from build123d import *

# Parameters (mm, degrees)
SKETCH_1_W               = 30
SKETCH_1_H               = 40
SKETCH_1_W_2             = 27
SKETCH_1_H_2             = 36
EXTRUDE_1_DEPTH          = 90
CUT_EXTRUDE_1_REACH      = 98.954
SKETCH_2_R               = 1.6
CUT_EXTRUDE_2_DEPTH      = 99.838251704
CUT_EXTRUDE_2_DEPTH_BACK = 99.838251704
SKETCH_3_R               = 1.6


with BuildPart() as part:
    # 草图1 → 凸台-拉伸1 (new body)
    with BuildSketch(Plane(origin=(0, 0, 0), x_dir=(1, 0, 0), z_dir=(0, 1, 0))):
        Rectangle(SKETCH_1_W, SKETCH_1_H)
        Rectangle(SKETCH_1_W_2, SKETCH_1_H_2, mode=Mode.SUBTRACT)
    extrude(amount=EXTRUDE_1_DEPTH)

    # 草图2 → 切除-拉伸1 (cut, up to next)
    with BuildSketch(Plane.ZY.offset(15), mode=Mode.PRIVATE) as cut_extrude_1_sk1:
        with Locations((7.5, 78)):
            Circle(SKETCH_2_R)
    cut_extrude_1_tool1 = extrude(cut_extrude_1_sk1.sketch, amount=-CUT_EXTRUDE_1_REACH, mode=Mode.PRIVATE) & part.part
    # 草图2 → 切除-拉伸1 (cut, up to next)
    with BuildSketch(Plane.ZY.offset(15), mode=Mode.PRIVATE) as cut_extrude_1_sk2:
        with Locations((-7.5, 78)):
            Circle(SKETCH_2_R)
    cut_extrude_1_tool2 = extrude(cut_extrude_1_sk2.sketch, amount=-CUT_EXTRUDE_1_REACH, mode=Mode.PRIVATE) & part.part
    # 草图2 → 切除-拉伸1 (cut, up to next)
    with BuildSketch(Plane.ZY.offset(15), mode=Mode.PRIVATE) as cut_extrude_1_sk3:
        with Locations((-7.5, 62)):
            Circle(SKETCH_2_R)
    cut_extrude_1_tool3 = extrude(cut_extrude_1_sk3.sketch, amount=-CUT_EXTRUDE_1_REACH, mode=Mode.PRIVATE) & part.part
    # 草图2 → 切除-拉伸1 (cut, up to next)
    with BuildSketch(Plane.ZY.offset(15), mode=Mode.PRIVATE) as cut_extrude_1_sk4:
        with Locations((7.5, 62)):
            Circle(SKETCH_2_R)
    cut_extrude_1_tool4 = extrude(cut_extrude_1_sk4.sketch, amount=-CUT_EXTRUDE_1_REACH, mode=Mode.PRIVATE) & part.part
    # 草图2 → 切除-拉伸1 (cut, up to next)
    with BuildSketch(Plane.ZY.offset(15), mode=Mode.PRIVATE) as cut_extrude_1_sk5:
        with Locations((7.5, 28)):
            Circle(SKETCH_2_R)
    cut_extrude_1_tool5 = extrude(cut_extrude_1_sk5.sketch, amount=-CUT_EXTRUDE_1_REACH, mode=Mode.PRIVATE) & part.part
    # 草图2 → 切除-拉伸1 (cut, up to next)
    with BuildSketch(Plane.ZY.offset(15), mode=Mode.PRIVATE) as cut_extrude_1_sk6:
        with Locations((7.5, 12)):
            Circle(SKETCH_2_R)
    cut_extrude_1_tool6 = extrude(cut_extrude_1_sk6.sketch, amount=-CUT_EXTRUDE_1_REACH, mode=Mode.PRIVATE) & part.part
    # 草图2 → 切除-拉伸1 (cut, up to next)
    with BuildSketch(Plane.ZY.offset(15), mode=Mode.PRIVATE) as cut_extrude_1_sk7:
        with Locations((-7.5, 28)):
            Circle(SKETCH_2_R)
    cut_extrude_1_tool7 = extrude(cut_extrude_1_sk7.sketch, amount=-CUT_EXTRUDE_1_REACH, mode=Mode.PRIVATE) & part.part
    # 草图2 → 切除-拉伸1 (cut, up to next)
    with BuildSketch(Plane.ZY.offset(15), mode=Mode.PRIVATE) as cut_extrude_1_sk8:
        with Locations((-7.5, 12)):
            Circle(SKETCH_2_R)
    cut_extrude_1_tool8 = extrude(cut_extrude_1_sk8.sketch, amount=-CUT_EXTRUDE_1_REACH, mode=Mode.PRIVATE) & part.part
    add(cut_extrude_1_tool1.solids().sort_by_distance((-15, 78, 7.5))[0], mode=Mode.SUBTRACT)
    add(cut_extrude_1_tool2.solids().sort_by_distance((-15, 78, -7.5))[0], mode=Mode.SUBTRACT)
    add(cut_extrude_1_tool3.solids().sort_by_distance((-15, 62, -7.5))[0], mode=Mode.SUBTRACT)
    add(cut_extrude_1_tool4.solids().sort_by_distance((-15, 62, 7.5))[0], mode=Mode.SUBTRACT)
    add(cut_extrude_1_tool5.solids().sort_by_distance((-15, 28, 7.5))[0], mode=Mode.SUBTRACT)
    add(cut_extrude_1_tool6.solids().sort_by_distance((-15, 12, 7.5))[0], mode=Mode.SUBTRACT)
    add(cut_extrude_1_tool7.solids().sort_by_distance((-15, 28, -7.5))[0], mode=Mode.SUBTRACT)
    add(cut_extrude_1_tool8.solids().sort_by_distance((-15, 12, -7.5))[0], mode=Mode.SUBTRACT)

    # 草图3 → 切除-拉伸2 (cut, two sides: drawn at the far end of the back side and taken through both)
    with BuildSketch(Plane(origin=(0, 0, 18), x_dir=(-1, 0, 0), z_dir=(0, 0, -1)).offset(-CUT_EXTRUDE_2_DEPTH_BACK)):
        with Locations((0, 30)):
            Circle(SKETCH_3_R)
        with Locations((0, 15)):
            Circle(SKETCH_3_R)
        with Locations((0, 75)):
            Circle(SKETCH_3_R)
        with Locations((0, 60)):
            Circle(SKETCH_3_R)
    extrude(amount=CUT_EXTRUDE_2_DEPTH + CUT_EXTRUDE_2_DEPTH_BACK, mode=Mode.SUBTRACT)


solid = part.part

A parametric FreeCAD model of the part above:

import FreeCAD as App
import Part
import Sketcher
Q = App.Units.Quantity


def add_polygon(sketch, points):
    """Adds a closed chain of lines whose ends are joined by coincident constraints."""
    first, n = sketch.GeometryCount, len(points)
    for a, b in zip(points, points[1:] + points[:1]):
        sketch.addGeometry(Part.LineSegment(App.Vector(*a, 0), App.Vector(*b, 0)), False)
    for i in range(n):
        sketch.addConstraint(Sketcher.Constraint("Coincident", first + i, 2, first + (i + 1) % n, 1))

doc = App.newDocument("Part")
body = doc.addObject("PartDesign::Body", "Body")

sketch1 = doc.addObject("Sketcher::SketchObject", "Sketch")
body.addObject(sketch1)
sketch1.AttachmentSupport = (doc.XZ_Plane, [""])
sketch1.MapMode = "FlatFace"
add_polygon(sketch1, [(-15, -20), (-15, 20), (15, 20), (15, -20)])
add_polygon(sketch1, [(13.5, 18), (-13.5, 18), (-13.5, -18), (13.5, -18)])
sketch1.addConstraint(Sketcher.Constraint("Vertical", 0))
sketch1.addConstraint(Sketcher.Constraint("Horizontal", 1))
sketch1.addConstraint(Sketcher.Constraint("Vertical", 2))
sketch1.addConstraint(Sketcher.Constraint("Horizontal", 3))
sketch1.addConstraint(Sketcher.Constraint("Horizontal", 4))
sketch1.addConstraint(Sketcher.Constraint("Vertical", 5))
sketch1.addConstraint(Sketcher.Constraint("Horizontal", 6))
sketch1.addConstraint(Sketcher.Constraint("Vertical", 7))
sketch1.addConstraint(Sketcher.Constraint("Symmetric", 0, 2, 2, 2, -1, 1))
sketch1.addConstraint(Sketcher.Constraint("Symmetric", 4, 2, 6, 2, -1, 1))
sketch1.addConstraint(Sketcher.Constraint("DistanceX", 1, 1, 1, 2, Q("30 mm")))
sketch1.addConstraint(Sketcher.Constraint("DistanceX", 4, 2, 4, 1, Q("27 mm")))
sketch1.addConstraint(Sketcher.Constraint("DistanceY", 0, 1, 0, 2, Q("40 mm")))
sketch1.addConstraint(Sketcher.Constraint("DistanceY", 5, 2, 5, 1, Q("36 mm")))
pad1 = doc.addObject("PartDesign::Pad", "Pad")
body.addObject(pad1)
pad1.Profile = sketch1
pad1.Length = 90
pad1.Reversed = True

sketch2 = doc.addObject("Sketcher::SketchObject", "Sketch001")
body.addObject(sketch2)
sketch2.AttachmentSupport = (doc.YZ_Plane, [""])
sketch2.MapMode = "FlatFace"
sketch2.AttachmentOffset = App.Placement(App.Vector(0, 0, -15), App.Rotation())
sketch2.addGeometry(Part.Circle(App.Vector(78, 7.5, 0), App.Vector(0, 0, 1), 1.6), False)
sketch2.addConstraint(Sketcher.Constraint("Diameter", 0, Q("3.2 mm")))
sketch2.addConstraint(Sketcher.Constraint("DistanceX", -1, 1, 0, 3, Q("78 mm")))
sketch2.addConstraint(Sketcher.Constraint("DistanceY", -1, 1, 0, 3, Q("7.5 mm")))
pocket1 = doc.addObject("PartDesign::Pocket", "Pocket")
body.addObject(pocket1)
pocket1.Profile = sketch2
pocket1.Type = "UpToFirst"
pocket1.Reversed = True

sketch3 = doc.addObject("Sketcher::SketchObject", "Sketch002")
body.addObject(sketch3)
sketch3.AttachmentSupport = (doc.YZ_Plane, [""])
sketch3.MapMode = "FlatFace"
sketch3.AttachmentOffset = App.Placement(App.Vector(0, 0, -15), App.Rotation())
sketch3.addGeometry(Part.Circle(App.Vector(78, -7.5, 0), App.Vector(0, 0, 1), 1.6), False)
sketch3.addConstraint(Sketcher.Constraint("Diameter", 0, Q("3.2 mm")))
sketch3.addConstraint(Sketcher.Constraint("DistanceX", -1, 1, 0, 3, Q("78 mm")))
sketch3.addConstraint(Sketcher.Constraint("DistanceY", 0, 3, -1, 1, Q("7.5 mm")))
pocket2 = doc.addObject("PartDesign::Pocket", "Pocket001")
body.addObject(pocket2)
pocket2.Profile = sketch3
pocket2.Type = "UpToFirst"
pocket2.Reversed = True

sketch4 = doc.addObject("Sketcher::SketchObject", "Sketch003")
body.addObject(sketch4)
sketch4.AttachmentSupport = (doc.YZ_Plane, [""])
sketch4.MapMode = "FlatFace"
sketch4.AttachmentOffset = App.Placement(App.Vector(0, 0, -15), App.Rotation())
sketch4.addGeometry(Part.Circle(App.Vector(62, -7.5, 0), App.Vector(0, 0, 1), 1.6), False)
sketch4.addConstraint(Sketcher.Constraint("Diameter", 0, Q("3.2 mm")))
sketch4.addConstraint(Sketcher.Constraint("DistanceX", -1, 1, 0, 3, Q("62 mm")))
sketch4.addConstraint(Sketcher.Constraint("DistanceY", 0, 3, -1, 1, Q("7.5 mm")))
pocket3 = doc.addObject("PartDesign::Pocket", "Pocket002")
body.addObject(pocket3)
pocket3.Profile = sketch4
pocket3.Type = "UpToFirst"
pocket3.Reversed = True

sketch5 = doc.addObject("Sketcher::SketchObject", "Sketch004")
body.addObject(sketch5)
sketch5.AttachmentSupport = (doc.YZ_Plane, [""])
sketch5.MapMode = "FlatFace"
sketch5.AttachmentOffset = App.Placement(App.Vector(0, 0, -15), App.Rotation())
sketch5.addGeometry(Part.Circle(App.Vector(62, 7.5, 0), App.Vector(0, 0, 1), 1.6), False)
sketch5.addConstraint(Sketcher.Constraint("Diameter", 0, Q("3.2 mm")))
sketch5.addConstraint(Sketcher.Constraint("DistanceX", -1, 1, 0, 3, Q("62 mm")))
sketch5.addConstraint(Sketcher.Constraint("DistanceY", -1, 1, 0, 3, Q("7.5 mm")))
pocket4 = doc.addObject("PartDesign::Pocket", "Pocket003")
body.addObject(pocket4)
pocket4.Profile = sketch5
pocket4.Type = "UpToFirst"
pocket4.Reversed = True

sketch6 = doc.addObject("Sketcher::SketchObject", "Sketch005")
body.addObject(sketch6)
sketch6.AttachmentSupport = (doc.YZ_Plane, [""])
sketch6.MapMode = "FlatFace"
sketch6.AttachmentOffset = App.Placement(App.Vector(0, 0, -15), App.Rotation())
sketch6.addGeometry(Part.Circle(App.Vector(28, 7.5, 0), App.Vector(0, 0, 1), 1.6), False)
sketch6.addConstraint(Sketcher.Constraint("Diameter", 0, Q("3.2 mm")))
sketch6.addConstraint(Sketcher.Constraint("DistanceX", -1, 1, 0, 3, Q("28 mm")))
sketch6.addConstraint(Sketcher.Constraint("DistanceY", -1, 1, 0, 3, Q("7.5 mm")))
pocket5 = doc.addObject("PartDesign::Pocket", "Pocket004")
body.addObject(pocket5)
pocket5.Profile = sketch6
pocket5.Type = "UpToFirst"
pocket5.Reversed = True

sketch7 = doc.addObject("Sketcher::SketchObject", "Sketch006")
body.addObject(sketch7)
sketch7.AttachmentSupport = (doc.YZ_Plane, [""])
sketch7.MapMode = "FlatFace"
sketch7.AttachmentOffset = App.Placement(App.Vector(0, 0, -15), App.Rotation())
sketch7.addGeometry(Part.Circle(App.Vector(12, 7.5, 0), App.Vector(0, 0, 1), 1.6), False)
sketch7.addConstraint(Sketcher.Constraint("Diameter", 0, Q("3.2 mm")))
sketch7.addConstraint(Sketcher.Constraint("DistanceX", -1, 1, 0, 3, Q("12 mm")))
sketch7.addConstraint(Sketcher.Constraint("DistanceY", -1, 1, 0, 3, Q("7.5 mm")))
pocket6 = doc.addObject("PartDesign::Pocket", "Pocket005")
body.addObject(pocket6)
pocket6.Profile = sketch7
pocket6.Type = "UpToFirst"
pocket6.Reversed = True

sketch8 = doc.addObject("Sketcher::SketchObject", "Sketch007")
body.addObject(sketch8)
sketch8.AttachmentSupport = (doc.YZ_Plane, [""])
sketch8.MapMode = "FlatFace"
sketch8.AttachmentOffset = App.Placement(App.Vector(0, 0, -15), App.Rotation())
sketch8.addGeometry(Part.Circle(App.Vector(28, -7.5, 0), App.Vector(0, 0, 1), 1.6), False)
sketch8.addConstraint(Sketcher.Constraint("Diameter", 0, Q("3.2 mm")))
sketch8.addConstraint(Sketcher.Constraint("DistanceX", -1, 1, 0, 3, Q("28 mm")))
sketch8.addConstraint(Sketcher.Constraint("DistanceY", 0, 3, -1, 1, Q("7.5 mm")))
pocket7 = doc.addObject("PartDesign::Pocket", "Pocket006")
body.addObject(pocket7)
pocket7.Profile = sketch8
pocket7.Type = "UpToFirst"
pocket7.Reversed = True

sketch9 = doc.addObject("Sketcher::SketchObject", "Sketch008")
body.addObject(sketch9)
sketch9.AttachmentSupport = (doc.YZ_Plane, [""])
sketch9.MapMode = "FlatFace"
sketch9.AttachmentOffset = App.Placement(App.Vector(0, 0, -15), App.Rotation())
sketch9.addGeometry(Part.Circle(App.Vector(12, -7.5, 0), App.Vector(0, 0, 1), 1.6), False)
sketch9.addConstraint(Sketcher.Constraint("Diameter", 0, Q("3.2 mm")))
sketch9.addConstraint(Sketcher.Constraint("DistanceX", -1, 1, 0, 3, Q("12 mm")))
sketch9.addConstraint(Sketcher.Constraint("DistanceY", 0, 3, -1, 1, Q("7.5 mm")))
pocket8 = doc.addObject("PartDesign::Pocket", "Pocket007")
body.addObject(pocket8)
pocket8.Profile = sketch9
pocket8.Type = "UpToFirst"
pocket8.Reversed = True

sketch10 = doc.addObject("Sketcher::SketchObject", "Sketch009")
body.addObject(sketch10)
sketch10.AttachmentSupport = (doc.XY_Plane, [""])
sketch10.MapMode = "FlatFace"
sketch10.AttachmentOffset = App.Placement(App.Vector(0, 0, 18), App.Rotation())
sketch10.addGeometry(Part.Circle(App.Vector(0, 30, 0), App.Vector(0, 0, 1), 1.6), False)
sketch10.addGeometry(Part.Circle(App.Vector(0, 15, 0), App.Vector(0, 0, 1), 1.6), False)
sketch10.addGeometry(Part.Circle(App.Vector(0, 75, 0), App.Vector(0, 0, 1), 1.6), False)
sketch10.addGeometry(Part.Circle(App.Vector(0, 60, 0), App.Vector(0, 0, 1), 1.6), False)
sketch10.addConstraint(Sketcher.Constraint("Equal", 0, 1))
sketch10.addConstraint(Sketcher.Constraint("Equal", 1, 2))
sketch10.addConstraint(Sketcher.Constraint("Equal", 2, 3))
sketch10.addConstraint(Sketcher.Constraint("PointOnObject", 0, 3, -2))
sketch10.addConstraint(Sketcher.Constraint("PointOnObject", 1, 3, -2))
sketch10.addConstraint(Sketcher.Constraint("PointOnObject", 2, 3, -2))
sketch10.addConstraint(Sketcher.Constraint("PointOnObject", 3, 3, -2))
sketch10.addConstraint(Sketcher.Constraint("Diameter", 0, Q("3.2 mm")))
sketch10.addConstraint(Sketcher.Constraint("DistanceY", -1, 1, 0, 3, Q("30 mm")))
sketch10.addConstraint(Sketcher.Constraint("DistanceY", -1, 1, 1, 3, Q("15 mm")))
sketch10.addConstraint(Sketcher.Constraint("DistanceY", -1, 1, 2, 3, Q("75 mm")))
sketch10.addConstraint(Sketcher.Constraint("DistanceY", -1, 1, 3, 3, Q("60 mm")))
pocket9 = doc.addObject("PartDesign::Pocket", "Pocket008")
body.addObject(pocket9)
pocket9.Profile = sketch10
pocket9.Type = "ThroughAll"
pocket9.Midplane = True

doc.recompute()
